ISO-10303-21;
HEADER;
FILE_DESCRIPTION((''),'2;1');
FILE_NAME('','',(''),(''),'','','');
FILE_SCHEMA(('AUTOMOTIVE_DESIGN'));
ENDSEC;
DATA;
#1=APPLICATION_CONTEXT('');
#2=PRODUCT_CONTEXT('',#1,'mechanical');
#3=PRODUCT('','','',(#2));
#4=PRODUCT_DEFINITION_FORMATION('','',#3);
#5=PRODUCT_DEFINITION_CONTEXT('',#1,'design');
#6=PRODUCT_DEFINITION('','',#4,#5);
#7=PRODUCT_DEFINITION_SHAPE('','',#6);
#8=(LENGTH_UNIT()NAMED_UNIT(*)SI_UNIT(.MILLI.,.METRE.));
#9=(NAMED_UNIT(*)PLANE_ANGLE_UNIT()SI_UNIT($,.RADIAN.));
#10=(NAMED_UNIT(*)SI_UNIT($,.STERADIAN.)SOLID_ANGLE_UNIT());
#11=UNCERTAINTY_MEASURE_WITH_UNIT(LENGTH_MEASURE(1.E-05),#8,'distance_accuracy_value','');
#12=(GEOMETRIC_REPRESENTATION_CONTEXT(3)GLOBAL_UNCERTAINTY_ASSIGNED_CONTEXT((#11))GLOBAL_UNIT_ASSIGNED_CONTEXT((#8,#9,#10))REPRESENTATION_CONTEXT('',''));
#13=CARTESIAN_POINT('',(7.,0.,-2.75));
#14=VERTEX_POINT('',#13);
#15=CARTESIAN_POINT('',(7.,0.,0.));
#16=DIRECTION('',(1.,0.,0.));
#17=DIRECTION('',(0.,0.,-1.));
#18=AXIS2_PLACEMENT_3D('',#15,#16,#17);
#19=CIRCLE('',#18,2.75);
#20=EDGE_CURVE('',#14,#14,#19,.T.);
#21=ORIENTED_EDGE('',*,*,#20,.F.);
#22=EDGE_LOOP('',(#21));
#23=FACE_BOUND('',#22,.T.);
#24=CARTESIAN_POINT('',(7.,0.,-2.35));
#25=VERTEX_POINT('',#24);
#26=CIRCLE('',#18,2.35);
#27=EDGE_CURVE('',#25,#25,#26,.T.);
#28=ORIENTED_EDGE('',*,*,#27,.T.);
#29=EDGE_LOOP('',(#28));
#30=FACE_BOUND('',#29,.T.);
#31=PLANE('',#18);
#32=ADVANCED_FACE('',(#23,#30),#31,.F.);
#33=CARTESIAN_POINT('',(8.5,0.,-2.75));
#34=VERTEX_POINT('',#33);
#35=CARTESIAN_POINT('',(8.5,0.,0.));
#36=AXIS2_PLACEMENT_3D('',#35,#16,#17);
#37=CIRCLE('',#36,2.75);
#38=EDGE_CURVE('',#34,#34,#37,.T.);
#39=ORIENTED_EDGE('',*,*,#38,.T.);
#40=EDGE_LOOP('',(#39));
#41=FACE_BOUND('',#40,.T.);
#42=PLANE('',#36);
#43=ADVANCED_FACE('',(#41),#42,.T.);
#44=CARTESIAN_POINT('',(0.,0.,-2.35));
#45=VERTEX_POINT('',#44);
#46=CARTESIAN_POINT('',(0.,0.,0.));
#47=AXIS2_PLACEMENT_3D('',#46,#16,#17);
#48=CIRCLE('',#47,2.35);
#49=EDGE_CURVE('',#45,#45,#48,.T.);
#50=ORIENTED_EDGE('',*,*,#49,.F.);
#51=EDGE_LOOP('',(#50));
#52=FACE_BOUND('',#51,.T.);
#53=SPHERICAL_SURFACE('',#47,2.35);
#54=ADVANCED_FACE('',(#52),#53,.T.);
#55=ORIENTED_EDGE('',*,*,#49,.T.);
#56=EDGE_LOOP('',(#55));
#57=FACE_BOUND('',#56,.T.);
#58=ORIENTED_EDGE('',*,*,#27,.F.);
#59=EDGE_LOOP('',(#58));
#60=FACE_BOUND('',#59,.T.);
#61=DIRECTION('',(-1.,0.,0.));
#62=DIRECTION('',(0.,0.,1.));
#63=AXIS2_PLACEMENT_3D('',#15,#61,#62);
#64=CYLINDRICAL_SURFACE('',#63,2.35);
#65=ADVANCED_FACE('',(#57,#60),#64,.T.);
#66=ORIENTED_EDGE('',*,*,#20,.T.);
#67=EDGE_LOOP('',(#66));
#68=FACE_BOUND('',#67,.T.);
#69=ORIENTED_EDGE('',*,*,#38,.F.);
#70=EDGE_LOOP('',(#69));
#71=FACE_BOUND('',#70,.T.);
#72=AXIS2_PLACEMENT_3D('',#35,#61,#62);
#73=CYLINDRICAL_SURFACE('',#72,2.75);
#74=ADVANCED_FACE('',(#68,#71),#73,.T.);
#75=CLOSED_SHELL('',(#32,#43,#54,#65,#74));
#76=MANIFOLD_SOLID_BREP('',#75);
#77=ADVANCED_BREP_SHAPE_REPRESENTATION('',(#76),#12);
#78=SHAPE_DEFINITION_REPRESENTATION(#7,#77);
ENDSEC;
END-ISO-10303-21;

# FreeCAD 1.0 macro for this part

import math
import FreeCAD as App
import Part
import Sketcher

V = App.Vector

doc = App.newDocument("Part")
body = doc.addObject("PartDesign::Body", "Body")

# Sketch on YZ plane
sketch1 = body.newObject("Sketcher::SketchObject", "Sketch")
sketch1.AttachmentSupport = (doc.getObject("YZ_Plane"), [""])
sketch1.MapMode = "FlatFace"
sketch1.addGeometry(Part.Circle(V(0, 0, 0), V(0, 0, 1), 2.4), False)
sketch1.addConstraint([
    Sketcher.Constraint("Coincident", 0, 3, -1, 1),
    Sketcher.Constraint("Diameter", 0, 4.7),
])
pad1 = body.newObject("PartDesign::Pad", "Pad")
pad1.Profile = sketch1
pad1.Length = 7

# Sketch on YZ plane
sketch2 = body.newObject("Sketcher::SketchObject", "Sketch001")
sketch2.AttachmentSupport = (doc.getObject("YZ_Plane"), [""])
sketch2.MapMode = "FlatFace"
sketch2.AttachmentOffset = App.Placement(V(0, 0, 7), App.Rotation())
sketch2.addGeometry(Part.Circle(V(0, 0, 0), V(0, 0, 1), 2.8), False)
sketch2.addConstraint([
    Sketcher.Constraint("Coincident", 0, 3, -1, 1),
    Sketcher.Constraint("Diameter", 0, 5.5),
])
pad2 = body.newObject("PartDesign::Pad", "Pad001")
pad2.Profile = sketch2
pad2.Length = 1.5

# Sketch on XY plane
sketch3 = body.newObject("Sketcher::SketchObject", "Sketch002")
sketch3.AttachmentSupport = (doc.getObject("XY_Plane"), [""])
sketch3.MapMode = "FlatFace"
sketch3.addGeometry([
    Part.LineSegment(V(0, -2.4, 0), V(0, 2.4, 0)),
    Part.ArcOfCircle(Part.Circle(V(0, 0, 0), V(0, 0, 1), 2.4), math.radians(90), math.radians(270)),
], False)
sketch3.addConstraint([
    Sketcher.Constraint("Coincident", 0, 1, 1, 2),
    Sketcher.Constraint("Coincident", 1, 1, 0, 2),
    Sketcher.Constraint("Vertical", 0),
    Sketcher.Constraint("Coincident", 1, 3, -1, 1),
    Sketcher.Constraint("PointOnObject", 0, 1, -2),
    Sketcher.Constraint("Radius", 1, 2.35),
])
revolution = body.newObject("PartDesign::Revolution", "Revolution")
revolution.Profile = sketch3
revolution.ReferenceAxis = (sketch3, ["V_Axis"])
revolution.Angle = 360

doc.recompute()
